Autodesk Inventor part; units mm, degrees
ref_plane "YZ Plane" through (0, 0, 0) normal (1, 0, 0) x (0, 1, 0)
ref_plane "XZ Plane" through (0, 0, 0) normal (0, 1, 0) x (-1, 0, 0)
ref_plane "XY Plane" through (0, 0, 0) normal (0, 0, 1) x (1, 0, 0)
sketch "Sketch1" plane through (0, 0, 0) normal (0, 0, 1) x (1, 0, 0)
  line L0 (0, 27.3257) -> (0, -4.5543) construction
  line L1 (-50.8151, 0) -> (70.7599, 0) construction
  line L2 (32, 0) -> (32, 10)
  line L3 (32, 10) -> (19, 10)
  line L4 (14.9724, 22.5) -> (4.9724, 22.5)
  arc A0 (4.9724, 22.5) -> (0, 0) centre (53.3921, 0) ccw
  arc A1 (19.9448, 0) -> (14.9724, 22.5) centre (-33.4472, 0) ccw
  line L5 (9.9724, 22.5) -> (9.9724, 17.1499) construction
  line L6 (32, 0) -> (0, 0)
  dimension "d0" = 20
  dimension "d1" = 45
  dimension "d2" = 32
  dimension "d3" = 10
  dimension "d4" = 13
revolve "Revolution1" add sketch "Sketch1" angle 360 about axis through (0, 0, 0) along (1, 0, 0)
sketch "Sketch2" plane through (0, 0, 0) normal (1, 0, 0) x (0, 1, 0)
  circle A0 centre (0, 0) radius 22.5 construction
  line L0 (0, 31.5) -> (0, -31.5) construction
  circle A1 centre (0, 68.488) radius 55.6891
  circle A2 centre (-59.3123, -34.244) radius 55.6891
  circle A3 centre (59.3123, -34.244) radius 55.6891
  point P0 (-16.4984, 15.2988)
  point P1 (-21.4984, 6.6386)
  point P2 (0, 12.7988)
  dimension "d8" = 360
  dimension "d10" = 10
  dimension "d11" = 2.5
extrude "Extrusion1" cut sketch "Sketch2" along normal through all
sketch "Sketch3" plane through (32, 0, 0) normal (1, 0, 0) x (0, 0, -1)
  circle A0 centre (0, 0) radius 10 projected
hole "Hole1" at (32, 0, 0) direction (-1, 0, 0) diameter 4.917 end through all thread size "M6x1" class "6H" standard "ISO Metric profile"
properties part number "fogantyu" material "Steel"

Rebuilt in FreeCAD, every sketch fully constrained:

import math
import FreeCAD as App
import Part
import Sketcher
from FreeCAD import Vector
Q = App.Units.Quantity

doc = App.newDocument("Part")
params = doc.addObject("Spreadsheet::Sheet", "Params")
for row, (alias, value) in enumerate([
    ("sketch1_width", "13 mm"),
    ("sketch1_width2", "10 mm"),
    ("sketch1_width3", "32 mm"),
    ("revolution_angle", "360 deg"),
    ("hole_diameter", "4.917 mm"),
], start=1):
    params.set(f"A{row}", alias)
    params.set(f"B{row}", "=" + value)
    params.setAlias(f"B{row}", alias)

body = doc.addObject("PartDesign::Body", "Body")

sketch1 = body.newObject("Sketcher::SketchObject", "Sketch")
sketch1.AttachmentSupport = (doc.getObject("XY_Plane"), [""])
sketch1.MapMode = "FlatFace"
sketch1.addGeometry(Part.LineSegment(Vector(32, 0, 0), Vector(32, 10, 0)), False)
sketch1.addGeometry(Part.LineSegment(Vector(32, 10, 0), Vector(19, 10, 0)), False)
sketch1.addGeometry(Part.ArcOfCircle(Part.Circle(Vector(-33, 0, 0), Vector(0, 0, 1), 53), math.radians(10.79), math.radians(24.92)), False)
sketch1.addGeometry(Part.LineSegment(Vector(15, 22, 0), Vector(5, 22, 0)), False)
sketch1.addGeometry(Part.ArcOfCircle(Part.Circle(Vector(53, 0, 0), Vector(0, 0, 1), 53), math.radians(155), math.radians(180)), False)
sketch1.addGeometry(Part.LineSegment(Vector(0, 0, 0), Vector(32, 0, 0)), False)
sketch1.addConstraint(Sketcher.Constraint("Coincident", 0, 2, 1, 1))
sketch1.addConstraint(Sketcher.Constraint("Coincident", 1, 2, 2, 1))
sketch1.addConstraint(Sketcher.Constraint("Coincident", 2, 2, 3, 1))
sketch1.addConstraint(Sketcher.Constraint("Coincident", 3, 2, 4, 1))
sketch1.addConstraint(Sketcher.Constraint("Coincident", 4, 2, 5, 1))
sketch1.addConstraint(Sketcher.Constraint("Coincident", 5, 2, 0, 1))
sketch1.addConstraint(Sketcher.Constraint("Vertical", 0))
sketch1.addConstraint(Sketcher.Constraint("Horizontal", 1))
sketch1.addConstraint(Sketcher.Constraint("Horizontal", 3))
sketch1.addConstraint(Sketcher.Constraint("Horizontal", 5))
sketch1.addConstraint(Sketcher.Constraint("Coincident", 4, 2, -1, 1))
sketch1.addConstraint(Sketcher.Constraint("Equal", 2, 4))
sketch1.addConstraint(Sketcher.Constraint("PointOnObject", 2, 3, -1))
sketch1.addConstraint(Sketcher.Constraint("PointOnObject", 4, 3, -1))
sketch1.addConstraint(Sketcher.Constraint("Equal", 3, 0))
sketch1.addConstraint(Sketcher.Constraint("DistanceX", 1, 2, 1, 1, Q("13 mm")))
sketch1.addConstraint(Sketcher.Constraint("DistanceX", 3, 2, 3, 1, Q("10 mm")))
sketch1.addConstraint(Sketcher.Constraint("DistanceX", 5, 1, 5, 2, Q("32 mm")))
sketch1.addConstraint(Sketcher.Constraint("Radius", 2, Q("53.392 mm")))
sketch1.setExpression("Constraints[15]", "Params.sketch1_width")
sketch1.setExpression("Constraints[16]", "Params.sketch1_width2")
sketch1.setExpression("Constraints[17]", "Params.sketch1_width3")
revolution = body.newObject("PartDesign::Revolution", "Revolution")
revolution.Profile = sketch1
revolution.ReferenceAxis = (sketch1, ["H_Axis"])
revolution.setExpression("Angle", "Params.revolution_angle")

sketch2 = body.newObject("Sketcher::SketchObject", "Sketch001")
sketch2.AttachmentSupport = (doc.getObject("YZ_Plane"), [""])
sketch2.MapMode = "FlatFace"
sketch2.addGeometry(Part.Circle(Vector(0, 68, 0), Vector(0, 0, 1), 56), False)
sketch2.addGeometry(Part.Circle(Vector(-59, -34, 0), Vector(0, 0, 1), 56), False)
sketch2.addGeometry(Part.Circle(Vector(59, -34, 0), Vector(0, 0, 1), 56), False)
sketch2.addConstraint(Sketcher.Constraint("Equal", 0, 1))
sketch2.addConstraint(Sketcher.Constraint("Equal", 1, 2))
sketch2.addConstraint(Sketcher.Constraint("Symmetric", 1, 3, 2, 3, -2))
sketch2.addConstraint(Sketcher.Constraint("PointOnObject", 0, 3, -2))
sketch2.addConstraint(Sketcher.Constraint("Diameter", 0, Q("111.3782 mm")))
sketch2.addConstraint(Sketcher.Constraint("DistanceY", -1, 1, 0, 3, Q("68.488 mm")))
sketch2.addConstraint(Sketcher.Constraint("DistanceY", 1, 3, -1, 1, Q("34.244 mm")))
sketch2.addConstraint(Sketcher.Constraint("DistanceX", 1, 3, -1, 1, Q("59.3123 mm")))
pocket1 = body.newObject("PartDesign::Pocket", "Pocket")
pocket1.Profile = sketch2
pocket1.Type = "ThroughAll"
pocket1.Reversed = True

sketch3 = body.newObject("Sketcher::SketchObject", "Sketch002")
sketch3.AttachmentSupport = (doc.getObject("YZ_Plane"), [""])
sketch3.MapMode = "FlatFace"
sketch3.AttachmentOffset = App.Placement(Vector(0, 0, 32), App.Rotation())
sketch3.addGeometry(Part.Circle(Vector(0, 0, 0), Vector(0, 0, 1), 2.5), False)
sketch3.addConstraint(Sketcher.Constraint("Coincident", 0, 3, -1, 1))
sketch3.addConstraint(Sketcher.Constraint("Diameter", 0, Q("4.917 mm")))
doc.recompute()
hole = body.newObject("PartDesign::Hole", "Hole")
hole.Profile = sketch3
hole.ThreadType = "None"
hole.setExpression("Diameter", "Params.hole_diameter")
hole.DepthType = "ThroughAll"

doc.recompute()
